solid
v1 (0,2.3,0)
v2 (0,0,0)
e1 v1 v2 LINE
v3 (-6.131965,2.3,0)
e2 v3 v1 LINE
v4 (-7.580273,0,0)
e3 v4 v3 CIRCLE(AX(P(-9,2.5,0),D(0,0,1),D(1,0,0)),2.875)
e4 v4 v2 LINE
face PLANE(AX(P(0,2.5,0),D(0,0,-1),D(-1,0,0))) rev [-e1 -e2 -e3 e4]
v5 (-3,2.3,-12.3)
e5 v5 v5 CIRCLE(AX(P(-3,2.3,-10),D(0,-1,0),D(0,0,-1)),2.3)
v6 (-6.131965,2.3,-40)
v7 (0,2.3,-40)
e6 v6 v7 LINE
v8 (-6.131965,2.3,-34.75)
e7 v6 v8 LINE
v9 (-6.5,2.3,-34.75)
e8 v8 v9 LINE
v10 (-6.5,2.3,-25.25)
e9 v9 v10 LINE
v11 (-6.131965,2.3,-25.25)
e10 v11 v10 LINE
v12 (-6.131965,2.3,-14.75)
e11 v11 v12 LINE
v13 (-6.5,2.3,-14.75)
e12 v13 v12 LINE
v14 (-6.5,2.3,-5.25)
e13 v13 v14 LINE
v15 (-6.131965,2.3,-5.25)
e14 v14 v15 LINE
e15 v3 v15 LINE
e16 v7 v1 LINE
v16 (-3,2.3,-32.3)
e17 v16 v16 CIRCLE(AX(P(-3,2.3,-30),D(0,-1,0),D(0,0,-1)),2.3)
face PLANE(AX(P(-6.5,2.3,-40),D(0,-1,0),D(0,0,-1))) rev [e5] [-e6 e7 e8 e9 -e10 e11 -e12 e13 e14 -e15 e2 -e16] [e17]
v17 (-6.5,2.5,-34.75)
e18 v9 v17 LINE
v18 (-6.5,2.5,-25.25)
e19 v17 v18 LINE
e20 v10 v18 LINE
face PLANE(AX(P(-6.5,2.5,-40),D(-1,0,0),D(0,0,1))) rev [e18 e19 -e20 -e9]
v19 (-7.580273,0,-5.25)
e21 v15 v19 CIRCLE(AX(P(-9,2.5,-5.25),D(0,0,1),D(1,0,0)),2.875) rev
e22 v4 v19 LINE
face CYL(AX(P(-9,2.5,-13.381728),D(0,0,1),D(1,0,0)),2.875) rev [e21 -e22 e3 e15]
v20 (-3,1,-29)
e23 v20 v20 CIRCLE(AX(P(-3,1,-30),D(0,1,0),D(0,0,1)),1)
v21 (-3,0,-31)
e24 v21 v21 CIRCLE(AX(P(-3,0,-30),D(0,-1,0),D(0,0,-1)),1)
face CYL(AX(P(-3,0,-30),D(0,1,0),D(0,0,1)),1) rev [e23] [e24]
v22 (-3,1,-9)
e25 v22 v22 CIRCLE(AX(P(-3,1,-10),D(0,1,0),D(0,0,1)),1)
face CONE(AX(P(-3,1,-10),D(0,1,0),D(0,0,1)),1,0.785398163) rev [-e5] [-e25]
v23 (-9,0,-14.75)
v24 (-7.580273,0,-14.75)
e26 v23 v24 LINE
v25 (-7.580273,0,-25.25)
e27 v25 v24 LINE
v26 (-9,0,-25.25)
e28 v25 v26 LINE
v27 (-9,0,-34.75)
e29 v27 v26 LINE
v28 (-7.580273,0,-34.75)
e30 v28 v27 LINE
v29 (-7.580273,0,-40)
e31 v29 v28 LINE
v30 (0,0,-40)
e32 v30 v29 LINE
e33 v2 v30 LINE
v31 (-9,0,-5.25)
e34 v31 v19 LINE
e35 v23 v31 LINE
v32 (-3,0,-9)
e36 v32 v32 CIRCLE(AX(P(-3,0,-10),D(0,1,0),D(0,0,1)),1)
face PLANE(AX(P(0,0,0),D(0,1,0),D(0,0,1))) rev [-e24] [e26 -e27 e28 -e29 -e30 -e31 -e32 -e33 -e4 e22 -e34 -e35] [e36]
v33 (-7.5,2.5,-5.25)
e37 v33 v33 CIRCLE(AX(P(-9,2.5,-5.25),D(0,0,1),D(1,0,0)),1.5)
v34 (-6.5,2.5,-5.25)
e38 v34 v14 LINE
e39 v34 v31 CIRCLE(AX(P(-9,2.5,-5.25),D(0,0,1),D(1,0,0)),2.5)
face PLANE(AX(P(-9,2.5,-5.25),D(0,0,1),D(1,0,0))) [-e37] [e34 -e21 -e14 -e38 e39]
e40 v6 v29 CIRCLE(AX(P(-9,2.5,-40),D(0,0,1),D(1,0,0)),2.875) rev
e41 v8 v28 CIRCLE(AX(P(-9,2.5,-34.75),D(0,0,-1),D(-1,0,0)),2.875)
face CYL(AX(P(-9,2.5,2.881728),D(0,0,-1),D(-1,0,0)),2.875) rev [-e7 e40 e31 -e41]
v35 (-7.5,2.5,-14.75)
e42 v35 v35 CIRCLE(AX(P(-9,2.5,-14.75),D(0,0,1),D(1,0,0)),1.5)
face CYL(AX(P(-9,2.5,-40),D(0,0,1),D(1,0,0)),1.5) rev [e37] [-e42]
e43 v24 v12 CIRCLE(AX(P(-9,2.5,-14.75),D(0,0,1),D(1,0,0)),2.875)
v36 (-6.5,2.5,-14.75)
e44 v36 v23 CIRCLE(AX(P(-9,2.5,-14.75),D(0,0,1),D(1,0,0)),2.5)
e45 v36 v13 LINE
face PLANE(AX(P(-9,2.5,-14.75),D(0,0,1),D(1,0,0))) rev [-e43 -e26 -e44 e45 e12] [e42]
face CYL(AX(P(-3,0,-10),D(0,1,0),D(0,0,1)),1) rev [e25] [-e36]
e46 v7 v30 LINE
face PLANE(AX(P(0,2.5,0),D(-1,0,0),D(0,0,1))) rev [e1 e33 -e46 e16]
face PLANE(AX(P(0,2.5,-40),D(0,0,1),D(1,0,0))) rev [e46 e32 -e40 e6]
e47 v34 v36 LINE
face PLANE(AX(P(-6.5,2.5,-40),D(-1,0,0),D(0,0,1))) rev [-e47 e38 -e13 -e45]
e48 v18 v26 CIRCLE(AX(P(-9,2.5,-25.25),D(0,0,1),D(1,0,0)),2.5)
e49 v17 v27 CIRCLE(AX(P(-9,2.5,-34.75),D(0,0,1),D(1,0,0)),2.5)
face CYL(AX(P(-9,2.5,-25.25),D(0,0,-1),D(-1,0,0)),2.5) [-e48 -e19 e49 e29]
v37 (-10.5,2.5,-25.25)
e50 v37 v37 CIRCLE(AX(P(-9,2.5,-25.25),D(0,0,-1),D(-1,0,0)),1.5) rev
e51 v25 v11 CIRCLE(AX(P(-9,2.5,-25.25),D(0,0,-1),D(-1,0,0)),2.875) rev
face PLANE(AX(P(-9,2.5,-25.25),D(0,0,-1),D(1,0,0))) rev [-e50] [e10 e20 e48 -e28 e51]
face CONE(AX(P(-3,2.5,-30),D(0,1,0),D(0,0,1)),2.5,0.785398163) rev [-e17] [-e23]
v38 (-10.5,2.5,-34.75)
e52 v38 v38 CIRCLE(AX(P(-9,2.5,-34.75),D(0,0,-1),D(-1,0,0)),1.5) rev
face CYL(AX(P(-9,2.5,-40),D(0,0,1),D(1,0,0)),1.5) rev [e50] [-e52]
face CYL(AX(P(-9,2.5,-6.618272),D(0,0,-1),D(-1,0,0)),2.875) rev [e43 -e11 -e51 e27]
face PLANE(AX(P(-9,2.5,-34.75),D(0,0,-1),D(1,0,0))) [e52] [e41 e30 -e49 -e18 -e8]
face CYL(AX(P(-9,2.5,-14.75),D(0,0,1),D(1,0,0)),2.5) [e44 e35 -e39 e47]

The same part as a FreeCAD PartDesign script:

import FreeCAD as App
import Part
import Sketcher


def edges_at(feature, points):
    """Names of the edges that pass closest to the given points."""
    edges = feature.Shape.Edges
    near = lambda p: min(range(len(edges)), key=lambda i: edges[i].distToShape(Part.Vertex(*p))[0])
    return sorted({f"Edge{near(p) + 1}" for p in points})


def add_polygon(sketch, points):
    """Adds a closed chain of lines whose ends are joined by coincident constraints."""
    first, n = sketch.GeometryCount, len(points)
    for a, b in zip(points, points[1:] + points[:1]):
        sketch.addGeometry(Part.LineSegment(App.Vector(*a, 0), App.Vector(*b, 0)), False)
    for i in range(n):
        sketch.addConstraint(Sketcher.Constraint("Coincident", first + i, 2, first + (i + 1) % n, 1))

doc = App.newDocument("Part")
params = doc.addObject("Spreadsheet::Sheet", "Params")
for row, (alias, value) in enumerate([
    ("sketch1_width", "9 mm"),
    ("sketch1_height", "40 mm"),
    ("pad1_length", "2.5 mm"),
    ("sketch2_diameter", "5 mm"),
    ("pad2_length", "9.5 mm"),
    ("sketch3_diameter", "3 mm"),
    ("sketch4_diameter", "5.75 mm"),
    ("pocket2_length", "5.25 mm"),
    ("sketch5_diameter", "5.75 mm"),
    ("pocket3_length", "5.25 mm"),
    ("sketch6_diameter", "2 mm"),
    ("chamfer_size", "1.5 mm"),
    ("chamfer2_size", "1.5 mm"),
    ("sketch7_width", "6.5 mm"),
    ("sketch7_height", "0.2 mm"),
], start=1):
    params.set(f"A{row}", alias)
    params.set(f"B{row}", "=" + value)
    params.setAlias(f"B{row}", alias)

body = doc.addObject("PartDesign::Body", "Body")

sketch1 = doc.addObject("Sketcher::SketchObject", "Sketch")
body.addObject(sketch1)
sketch1.AttachmentSupport = (doc.XZ_Plane, [""])
sketch1.MapMode = "FlatFace"
add_polygon(sketch1, [(-9, -40), (-9, 0), (0, 0), (0, -40)])
sketch1.addConstraint([
    Sketcher.Constraint("Vertical", 0),
    Sketcher.Constraint("Horizontal", 1),
    Sketcher.Constraint("Vertical", 2),
    Sketcher.Constraint("Horizontal", 3),
    Sketcher.Constraint("Coincident", 1, 2, -1, 1),
    Sketcher.Constraint("DistanceX", 1, 1, 1, 2, 9.0),
    Sketcher.Constraint("DistanceY", 0, 1, 0, 2, 40.0),
])
sketch1.setExpression("Constraints[9]", "Params.sketch1_width")
sketch1.setExpression("Constraints[10]", "Params.sketch1_height")
pad1 = doc.addObject("PartDesign::Pad", "Pad")
body.addObject(pad1)
pad1.Profile = sketch1
pad1.setExpression("Length", "Params.pad1_length")
pad1.Reversed = True

sketch2 = doc.addObject("Sketcher::SketchObject", "Sketch001")
body.addObject(sketch2)
sketch2.AttachmentSupport = (doc.XY_Plane, [""])
sketch2.MapMode = "FlatFace"
sketch2.AttachmentOffset = App.Placement(App.Vector(0, 0, -5.25), App.Rotation())
sketch2.addGeometry(Part.Circle(App.Vector(-9, 2.5, 0), App.Vector(0, 0, 1), 2.5), False)
sketch2.addConstraint([
    Sketcher.Constraint("Diameter", 0, 5.0),
    Sketcher.Constraint("DistanceX", 0, 3, -1, 1, 9.0),
    Sketcher.Constraint("DistanceY", -1, 1, 0, 3, 2.5),
])
sketch2.setExpression("Constraints[0]", "Params.sketch2_diameter")
pad2 = doc.addObject("PartDesign::Pad", "Pad001")
body.addObject(pad2)
pad2.Profile = sketch2
pad2.setExpression("Length", "Params.pad2_length")
pad2.Reversed = True

sketch3 = doc.addObject("Sketcher::SketchObject", "Sketch002")
body.addObject(sketch3)
sketch3.AttachmentSupport = (doc.XY_Plane, [""])
sketch3.MapMode = "FlatFace"
sketch3.addGeometry(Part.Circle(App.Vector(-9, 2.5, 0), App.Vector(0, 0, 1), 1.5), False)
sketch3.addConstraint([
    Sketcher.Constraint("Diameter", 0, 3.0),
    Sketcher.Constraint("DistanceX", 0, 3, -1, 1, 9.0),
    Sketcher.Constraint("DistanceY", -1, 1, 0, 3, 2.5),
])
sketch3.setExpression("Constraints[0]", "Params.sketch3_diameter")
pocket1 = doc.addObject("PartDesign::Pocket", "Pocket")
body.addObject(pocket1)
pocket1.Profile = sketch3
pocket1.Type = "ThroughAll"

sketch4 = doc.addObject("Sketcher::SketchObject", "Sketch003")
body.addObject(sketch4)
sketch4.AttachmentSupport = (doc.XY_Plane, [""])
sketch4.MapMode = "FlatFace"
sketch4.addGeometry(Part.Circle(App.Vector(-9, 2.5, 0), App.Vector(0, 0, 1), 2.875), False)
sketch4.addConstraint([
    Sketcher.Constraint("Diameter", 0, 5.75),
    Sketcher.Constraint("DistanceX", 0, 3, -1, 1, 9.0),
    Sketcher.Constraint("DistanceY", -1, 1, 0, 3, 2.5),
])
sketch4.setExpression("Constraints[0]", "Params.sketch4_diameter")
pocket2 = doc.addObject("PartDesign::Pocket", "Pocket001")
body.addObject(pocket2)
pocket2.Profile = sketch4
pocket2.setExpression("Length", "Params.pocket2_length")

sketch5 = doc.addObject("Sketcher::SketchObject", "Sketch004")
body.addObject(sketch5)
sketch5.AttachmentSupport = (doc.XY_Plane, [""])
sketch5.MapMode = "FlatFace"
sketch5.AttachmentOffset = App.Placement(App.Vector(0, 0, -14.75), App.Rotation())
sketch5.addGeometry(Part.Circle(App.Vector(-9, 2.5, 0), App.Vector(0, 0, 1), 2.875), False)
sketch5.addConstraint([
    Sketcher.Constraint("Diameter", 0, 5.75),
    Sketcher.Constraint("DistanceX", 0, 3, -1, 1, 9.0),
    Sketcher.Constraint("DistanceY", -1, 1, 0, 3, 2.5),
])
sketch5.setExpression("Constraints[0]", "Params.sketch5_diameter")
pocket3 = doc.addObject("PartDesign::Pocket", "Pocket002")
body.addObject(pocket3)
pocket3.Profile = sketch5
pocket3.setExpression("Length", "Params.pocket3_length")
doc.recompute()

datumplane = doc.addObject("PartDesign::Plane", "DatumPlane")
body.addObject(datumplane)
datumplane.AttachmentSupport = (doc.XY_Plane, [""])
datumplane.MapMode = "FlatFace"
datumplane.AttachmentOffset = App.Placement(App.Vector(0, 0, -20), App.Rotation())
mirrored = doc.addObject("PartDesign::Mirrored", "Mirrored")
body.addObject(mirrored)
mirrored.Originals = [pad2, pocket1, pocket2, pocket3]
mirrored.MirrorPlane = (datumplane, [""])
body.Tip = mirrored

sketch6 = doc.addObject("Sketcher::SketchObject", "Sketch005")
body.addObject(sketch6)
sketch6.AttachmentSupport = (doc.XZ_Plane, [""])
sketch6.MapMode = "FlatFace"
sketch6.AttachmentOffset = App.Placement(App.Vector(0, 0, -2.5), App.Rotation())
sketch6.addGeometry(Part.Circle(App.Vector(-3, -10, 0), App.Vector(0, 0, 1), 1), False)
sketch6.addConstraint([
    Sketcher.Constraint("Diameter", 0, 2.0),
    Sketcher.Constraint("DistanceX", 0, 3, -1, 1, 3.0),
    Sketcher.Constraint("DistanceY", 0, 3, -1, 1, 10.0),
])
sketch6.setExpression("Constraints[0]", "Params.sketch6_diameter")
pocket4 = doc.addObject("PartDesign::Pocket", "Pocket003")
body.addObject(pocket4)
pocket4.Profile = sketch6
pocket4.Type = "ThroughAll"
pocket4.Reversed = True
doc.recompute()

datumplane2 = doc.addObject("PartDesign::Plane", "DatumPlane001")
body.addObject(datumplane2)
datumplane2.AttachmentSupport = (doc.XY_Plane, [""])
datumplane2.MapMode = "FlatFace"
datumplane2.AttachmentOffset = App.Placement(App.Vector(0, 0, -20), App.Rotation())
mirrored2 = doc.addObject("PartDesign::Mirrored", "Mirrored001")
body.addObject(mirrored2)
mirrored2.Originals = [pocket4]
mirrored2.MirrorPlane = (datumplane2, [""])
body.Tip = mirrored2
doc.recompute()

chamfer = doc.addObject("PartDesign::Chamfer", "Chamfer")
body.addObject(chamfer)
chamfer.Base = (mirrored2, edges_at(mirrored2, [(-3, 2.5, -29)]))
chamfer.setExpression("Size", "Params.chamfer_size")
doc.recompute()

chamfer2 = doc.addObject("PartDesign::Chamfer", "Chamfer001")
body.addObject(chamfer2)
chamfer2.Base = (chamfer, edges_at(chamfer, [(-3, 2.5, -11)]))
chamfer2.setExpression("Size", "Params.chamfer2_size")

sketch7 = doc.addObject("Sketcher::SketchObject", "Sketch006")
body.addObject(sketch7)
sketch7.AttachmentSupport = (doc.XY_Plane, [""])
sketch7.MapMode = "FlatFace"
add_polygon(sketch7, [(-6.5, 2.5), (-6.5, 2.3), (0, 2.3), (0, 2.5)])
sketch7.addConstraint([
    Sketcher.Constraint("Vertical", 0),
    Sketcher.Constraint("Horizontal", 1),
    Sketcher.Constraint("Vertical", 2),
    Sketcher.Constraint("Horizontal", 3),
    Sketcher.Constraint("PointOnObject", 1, 2, -2),
    Sketcher.Constraint("DistanceX", 1, 1, 1, 2, 6.5),
    Sketcher.Constraint("DistanceY", 0, 2, 0, 1, 0.2),
    Sketcher.Constraint("DistanceY", -1, 1, 0, 2, 2.3),
])
sketch7.setExpression("Constraints[9]", "Params.sketch7_width")
sketch7.setExpression("Constraints[10]", "Params.sketch7_height")
pocket5 = doc.addObject("PartDesign::Pocket", "Pocket004")
body.addObject(pocket5)
pocket5.Profile = sketch7
pocket5.Type = "ThroughAll"

doc.recompute()
